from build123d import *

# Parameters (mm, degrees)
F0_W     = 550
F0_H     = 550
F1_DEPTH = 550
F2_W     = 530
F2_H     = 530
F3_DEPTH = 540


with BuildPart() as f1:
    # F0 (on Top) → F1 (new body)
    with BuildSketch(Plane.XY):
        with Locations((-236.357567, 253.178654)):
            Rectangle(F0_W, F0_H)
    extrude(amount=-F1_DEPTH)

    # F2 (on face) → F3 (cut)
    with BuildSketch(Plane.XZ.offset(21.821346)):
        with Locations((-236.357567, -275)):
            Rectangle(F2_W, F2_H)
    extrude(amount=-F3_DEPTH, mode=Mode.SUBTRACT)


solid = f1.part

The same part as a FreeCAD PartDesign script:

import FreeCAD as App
import Part
import Sketcher

V = App.Vector
Q = App.Units.Quantity


def add_polygon(sketch, points):
    """Adds a closed chain of lines whose ends are joined by coincident constraints."""
    first, n = sketch.GeometryCount, len(points)
    for a, b in zip(points, points[1:] + points[:1]):
        sketch.addGeometry(Part.LineSegment(App.Vector(*a, 0), App.Vector(*b, 0)), False)
    for i in range(n):
        sketch.addConstraint(Sketcher.Constraint("Coincident", first + i, 2, first + (i + 1) % n, 1))

doc = App.newDocument("Part")
body = doc.addObject("PartDesign::Body", "Body")

# Sketch on XY plane
sketch1 = body.newObject("Sketcher::SketchObject", "Sketch")
sketch1.AttachmentSupport = (doc.getObject("XY_Plane"), [""])
sketch1.MapMode = "FlatFace"
add_polygon(sketch1, [(-511.357567, 528.178654), (-511.357567, -21.821346), (38.642433, -21.821346), (38.642433, 528.178654)])  # lines 0-3
sketch1.addConstraint([
    Sketcher.Constraint("Vertical", 0),
    Sketcher.Constraint("Horizontal", 1),
    Sketcher.Constraint("Vertical", 2),
    Sketcher.Constraint("Horizontal", 3),
    Sketcher.Constraint("Equal", 3, 0),
    Sketcher.Constraint("DistanceX", 1, 1, 1, 2, Q("550 mm")),
    Sketcher.Constraint("DistanceX", 0, 2, -1, 1, Q("511.357567 mm")),
    Sketcher.Constraint("DistanceY", 0, 2, -1, 1, Q("21.821346 mm")),
])
pad1 = body.newObject("PartDesign::Pad", "Pad")
pad1.Profile = sketch1
pad1.Length = 550
pad1.Reversed = True

# Sketch on XZ plane
sketch2 = body.newObject("Sketcher::SketchObject", "Sketch001")
sketch2.AttachmentSupport = (doc.getObject("XZ_Plane"), [""])
sketch2.MapMode = "FlatFace"
sketch2.AttachmentOffset = App.Placement(V(0, 0, 21.821346), App.Rotation())
add_polygon(sketch2, [(-501.357567, -10), (-501.357567, -540), (28.642433, -540), (28.642433, -10)])  # lines 0-3
sketch2.addConstraint([
    Sketcher.Constraint("Vertical", 0),
    Sketcher.Constraint("Horizontal", 1),
    Sketcher.Constraint("Vertical", 2),
    Sketcher.Constraint("Horizontal", 3),
    Sketcher.Constraint("Equal", 3, 0),
    Sketcher.Constraint("DistanceX", 1, 1, 1, 2, Q("530 mm")),
    Sketcher.Constraint("DistanceY", 0, 2, -1, 1, Q("540 mm")),
    Sketcher.Constraint("DistanceX", 0, 2, -1, 1, Q("501.357567 mm")),
])
pocket1 = body.newObject("PartDesign::Pocket", "Pocket")
pocket1.Profile = sketch2
pocket1.Length = 540

doc.recompute()
